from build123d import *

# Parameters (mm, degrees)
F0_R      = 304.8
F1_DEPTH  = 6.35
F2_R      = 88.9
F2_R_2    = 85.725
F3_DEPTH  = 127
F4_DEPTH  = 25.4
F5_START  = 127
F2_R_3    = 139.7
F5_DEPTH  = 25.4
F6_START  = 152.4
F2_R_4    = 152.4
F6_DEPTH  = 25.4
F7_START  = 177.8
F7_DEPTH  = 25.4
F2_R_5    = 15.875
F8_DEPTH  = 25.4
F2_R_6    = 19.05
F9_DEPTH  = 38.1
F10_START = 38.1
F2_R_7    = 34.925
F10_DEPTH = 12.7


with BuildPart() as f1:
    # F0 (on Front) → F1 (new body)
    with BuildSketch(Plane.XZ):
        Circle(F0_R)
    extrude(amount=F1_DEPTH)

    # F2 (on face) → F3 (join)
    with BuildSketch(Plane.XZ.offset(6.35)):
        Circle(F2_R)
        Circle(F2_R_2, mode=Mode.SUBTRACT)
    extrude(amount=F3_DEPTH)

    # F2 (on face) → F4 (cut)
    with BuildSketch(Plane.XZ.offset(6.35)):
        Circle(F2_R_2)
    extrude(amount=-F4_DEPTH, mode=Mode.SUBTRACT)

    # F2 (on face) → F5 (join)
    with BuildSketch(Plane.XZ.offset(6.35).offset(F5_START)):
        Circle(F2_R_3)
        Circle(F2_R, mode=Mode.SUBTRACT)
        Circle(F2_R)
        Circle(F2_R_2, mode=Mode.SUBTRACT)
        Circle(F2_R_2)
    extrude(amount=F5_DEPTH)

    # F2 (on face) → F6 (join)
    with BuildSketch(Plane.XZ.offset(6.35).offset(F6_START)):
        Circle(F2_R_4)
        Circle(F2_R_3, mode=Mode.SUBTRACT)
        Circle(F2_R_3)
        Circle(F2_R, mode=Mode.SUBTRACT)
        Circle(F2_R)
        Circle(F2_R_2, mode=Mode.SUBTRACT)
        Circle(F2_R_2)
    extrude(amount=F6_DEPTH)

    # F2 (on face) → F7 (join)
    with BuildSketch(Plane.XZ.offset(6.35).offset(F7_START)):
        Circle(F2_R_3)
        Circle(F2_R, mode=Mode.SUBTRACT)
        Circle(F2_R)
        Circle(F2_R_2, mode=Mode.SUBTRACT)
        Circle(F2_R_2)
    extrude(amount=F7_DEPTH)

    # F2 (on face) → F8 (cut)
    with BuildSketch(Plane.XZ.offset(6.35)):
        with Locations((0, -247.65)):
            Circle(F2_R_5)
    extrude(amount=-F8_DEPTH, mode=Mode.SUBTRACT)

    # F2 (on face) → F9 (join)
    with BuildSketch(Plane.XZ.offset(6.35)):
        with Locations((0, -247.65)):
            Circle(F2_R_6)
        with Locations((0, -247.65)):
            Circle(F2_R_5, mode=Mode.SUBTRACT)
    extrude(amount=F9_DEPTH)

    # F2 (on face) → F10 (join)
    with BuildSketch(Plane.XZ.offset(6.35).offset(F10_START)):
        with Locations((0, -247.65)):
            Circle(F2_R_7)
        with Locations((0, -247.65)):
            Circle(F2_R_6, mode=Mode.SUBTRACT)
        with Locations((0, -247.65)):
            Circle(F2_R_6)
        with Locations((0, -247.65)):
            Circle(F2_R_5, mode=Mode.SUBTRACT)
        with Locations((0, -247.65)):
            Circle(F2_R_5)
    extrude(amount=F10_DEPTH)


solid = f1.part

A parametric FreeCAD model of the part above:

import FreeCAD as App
import Part
import Sketcher

V = App.Vector
Q = App.Units.Quantity

doc = App.newDocument("Part")
body = doc.addObject("PartDesign::Body", "Body")

# Sketch on XZ plane
sketch1 = doc.addObject("Sketcher::SketchObject", "Sketch")
body.addObject(sketch1)
sketch1.AttachmentSupport = (doc.XZ_Plane, [""])
sketch1.MapMode = "FlatFace"
sketch1.addGeometry(Part.Circle(V(0, 0, 0), V(0, 0, 1), 304.8), False)
sketch1.addConstraint(Sketcher.Constraint("Coincident", 0, 3, -1, 1))
sketch1.addConstraint(Sketcher.Constraint("Diameter", 0, Q("24 in")))
pad1 = doc.addObject("PartDesign::Pad", "Pad")
body.addObject(pad1)
pad1.Profile = sketch1
pad1.Length = Q("0.25 in")

# Sketch on XZ plane
sketch2 = doc.addObject("Sketcher::SketchObject", "Sketch001")
body.addObject(sketch2)
sketch2.AttachmentSupport = (doc.XZ_Plane, [""])
sketch2.MapMode = "FlatFace"
sketch2.AttachmentOffset = App.Placement(V(0, 0, 0.25 * 25.4), App.Rotation())
sketch2.addGeometry(Part.Circle(V(0, 0, 0), V(0, 0, 1), 88.9), False)
sketch2.addGeometry(Part.Circle(V(0, 0, 0), V(0, 0, 1), 85.725), False)
sketch2.addConstraint(Sketcher.Constraint("Coincident", 0, 3, -1, 1))
sketch2.addConstraint(Sketcher.Constraint("Coincident", 1, 3, -1, 1))
sketch2.addConstraint(Sketcher.Constraint("Diameter", 0, Q("7 in")))
sketch2.addConstraint(Sketcher.Constraint("Diameter", 1, Q("6.75 in")))
pad2 = doc.addObject("PartDesign::Pad", "Pad001")
body.addObject(pad2)
pad2.Profile = sketch2
pad2.Length = Q("5 in")

# Sketch on XZ plane
sketch3 = doc.addObject("Sketcher::SketchObject", "Sketch002")
body.addObject(sketch3)
sketch3.AttachmentSupport = (doc.XZ_Plane, [""])
sketch3.MapMode = "FlatFace"
sketch3.AttachmentOffset = App.Placement(V(0, 0, 0.25 * 25.4), App.Rotation())
sketch3.addGeometry(Part.Circle(V(0, 0, 0), V(0, 0, 1), 85.725), False)
sketch3.addConstraint(Sketcher.Constraint("Coincident", 0, 3, -1, 1))
sketch3.addConstraint(Sketcher.Constraint("Diameter", 0, Q("6.75 in")))
pocket1 = doc.addObject("PartDesign::Pocket", "Pocket")
body.addObject(pocket1)
pocket1.Profile = sketch3
pocket1.Length = Q("1 in")

# Sketch on XZ plane
sketch4 = doc.addObject("Sketcher::SketchObject", "Sketch003")
body.addObject(sketch4)
sketch4.AttachmentSupport = (doc.XZ_Plane, [""])
sketch4.MapMode = "FlatFace"
sketch4.AttachmentOffset = App.Placement(V(0, 0, 5.25 * 25.4), App.Rotation())
sketch4.addGeometry(Part.Circle(V(0, 0, 0), V(0, 0, 1), 139.7), False)
sketch4.addConstraint(Sketcher.Constraint("Coincident", 0, 3, -1, 1))
sketch4.addConstraint(Sketcher.Constraint("Diameter", 0, Q("11 in")))
pad3 = doc.addObject("PartDesign::Pad", "Pad002")
body.addObject(pad3)
pad3.Profile = sketch4
pad3.Length = Q("1 in")

# Sketch on XZ plane
sketch5 = doc.addObject("Sketcher::SketchObject", "Sketch004")
body.addObject(sketch5)
sketch5.AttachmentSupport = (doc.XZ_Plane, [""])
sketch5.MapMode = "FlatFace"
sketch5.AttachmentOffset = App.Placement(V(0, 0, 6.25 * 25.4), App.Rotation())
sketch5.addGeometry(Part.Circle(V(0, 0, 0), V(0, 0, 1), 152.4), False)
sketch5.addConstraint(Sketcher.Constraint("Coincident", 0, 3, -1, 1))
sketch5.addConstraint(Sketcher.Constraint("Diameter", 0, Q("12 in")))
pad4 = doc.addObject("PartDesign::Pad", "Pad003")
body.addObject(pad4)
pad4.Profile = sketch5
pad4.Length = Q("1 in")

# Sketch on XZ plane
sketch6 = doc.addObject("Sketcher::SketchObject", "Sketch005")
body.addObject(sketch6)
sketch6.AttachmentSupport = (doc.XZ_Plane, [""])
sketch6.MapMode = "FlatFace"
sketch6.AttachmentOffset = App.Placement(V(0, 0, 7.25 * 25.4), App.Rotation())
sketch6.addGeometry(Part.Circle(V(0, 0, 0), V(0, 0, 1), 139.7), False)
sketch6.addConstraint(Sketcher.Constraint("Coincident", 0, 3, -1, 1))
sketch6.addConstraint(Sketcher.Constraint("Diameter", 0, Q("11 in")))
pad5 = doc.addObject("PartDesign::Pad", "Pad004")
body.addObject(pad5)
pad5.Profile = sketch6
pad5.Length = Q("1 in")

# Sketch on XZ plane
sketch7 = doc.addObject("Sketcher::SketchObject", "Sketch006")
body.addObject(sketch7)
sketch7.AttachmentSupport = (doc.XZ_Plane, [""])
sketch7.MapMode = "FlatFace"
sketch7.AttachmentOffset = App.Placement(V(0, 0, 0.25 * 25.4), App.Rotation())
sketch7.addGeometry(Part.Circle(V(0, -247.65, 0), V(0, 0, 1), 15.875), False)
sketch7.addConstraint(Sketcher.Constraint("PointOnObject", 0, 3, -2))
sketch7.addConstraint(Sketcher.Constraint("Diameter", 0, Q("1.25 in")))
sketch7.addConstraint(Sketcher.Constraint("DistanceY", 0, 3, -1, 1, Q("9.75 in")))
pocket2 = doc.addObject("PartDesign::Pocket", "Pocket001")
body.addObject(pocket2)
pocket2.Profile = sketch7
pocket2.Length = Q("1 in")

# Sketch on XZ plane
sketch8 = doc.addObject("Sketcher::SketchObject", "Sketch007")
body.addObject(sketch8)
sketch8.AttachmentSupport = (doc.XZ_Plane, [""])
sketch8.MapMode = "FlatFace"
sketch8.AttachmentOffset = App.Placement(V(0, 0, 0.25 * 25.4), App.Rotation())
sketch8.addGeometry(Part.Circle(V(0, -247.65, 0), V(0, 0, 1), 19.05), False)
sketch8.addGeometry(Part.Circle(V(0, -247.65, 0), V(0, 0, 1), 15.875), False)
sketch8.addConstraint(Sketcher.Constraint("Coincident", 1, 3, 0, 3))
sketch8.addConstraint(Sketcher.Constraint("PointOnObject", 0, 3, -2))
sketch8.addConstraint(Sketcher.Constraint("Diameter", 0, Q("1.5 in")))
sketch8.addConstraint(Sketcher.Constraint("Diameter", 1, Q("1.25 in")))
sketch8.addConstraint(Sketcher.Constraint("DistanceY", 0, 3, -1, 1, Q("9.75 in")))
pad6 = doc.addObject("PartDesign::Pad", "Pad005")
body.addObject(pad6)
pad6.Profile = sketch8
pad6.Length = Q("1.5 in")

# Sketch on XZ plane
sketch9 = doc.addObject("Sketcher::SketchObject", "Sketch008")
body.addObject(sketch9)
sketch9.AttachmentSupport = (doc.XZ_Plane, [""])
sketch9.MapMode = "FlatFace"
sketch9.AttachmentOffset = App.Placement(V(0, 0, 1.75 * 25.4), App.Rotation())
sketch9.addGeometry(Part.Circle(V(0, -247.65, 0), V(0, 0, 1), 34.925), False)
sketch9.addConstraint(Sketcher.Constraint("PointOnObject", 0, 3, -2))
sketch9.addConstraint(Sketcher.Constraint("Diameter", 0, Q("2.75 in")))
sketch9.addConstraint(Sketcher.Constraint("DistanceY", 0, 3, -1, 1, Q("9.75 in")))
pad7 = doc.addObject("PartDesign::Pad", "Pad006")
body.addObject(pad7)
pad7.Profile = sketch9
pad7.Length = Q("0.5 in")

doc.recompute()
